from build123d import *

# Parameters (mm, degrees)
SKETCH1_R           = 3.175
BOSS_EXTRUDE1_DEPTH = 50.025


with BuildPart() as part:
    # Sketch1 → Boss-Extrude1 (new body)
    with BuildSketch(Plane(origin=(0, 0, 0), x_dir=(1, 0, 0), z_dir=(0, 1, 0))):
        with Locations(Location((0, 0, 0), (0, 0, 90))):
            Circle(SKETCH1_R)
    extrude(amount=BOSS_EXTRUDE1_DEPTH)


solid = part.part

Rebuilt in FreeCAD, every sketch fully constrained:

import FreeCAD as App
import Part
import Sketcher
from FreeCAD import Vector
Q = App.Units.Quantity

doc = App.newDocument("Part")
body = doc.addObject("PartDesign::Body", "Body")

# Sketch on XZ plane
sketch1 = doc.addObject("Sketcher::SketchObject", "Sketch")
body.addObject(sketch1)
sketch1.AttachmentSupport = (doc.XZ_Plane, [""])
sketch1.MapMode = "FlatFace"
sketch1.addGeometry(Part.Circle(Vector(0, 0, 0), Vector(0, 0, 1), 3.2), False)
sketch1.addConstraint(Sketcher.Constraint("Coincident", 0, 3, -1, 1))
sketch1.addConstraint(Sketcher.Constraint("Diameter", 0, Q("0.25 in")))
pad1 = doc.addObject("PartDesign::Pad", "Pad")
body.addObject(pad1)
pad1.Profile = sketch1
pad1.Length = 50.025
pad1.Reversed = True

doc.recompute()
